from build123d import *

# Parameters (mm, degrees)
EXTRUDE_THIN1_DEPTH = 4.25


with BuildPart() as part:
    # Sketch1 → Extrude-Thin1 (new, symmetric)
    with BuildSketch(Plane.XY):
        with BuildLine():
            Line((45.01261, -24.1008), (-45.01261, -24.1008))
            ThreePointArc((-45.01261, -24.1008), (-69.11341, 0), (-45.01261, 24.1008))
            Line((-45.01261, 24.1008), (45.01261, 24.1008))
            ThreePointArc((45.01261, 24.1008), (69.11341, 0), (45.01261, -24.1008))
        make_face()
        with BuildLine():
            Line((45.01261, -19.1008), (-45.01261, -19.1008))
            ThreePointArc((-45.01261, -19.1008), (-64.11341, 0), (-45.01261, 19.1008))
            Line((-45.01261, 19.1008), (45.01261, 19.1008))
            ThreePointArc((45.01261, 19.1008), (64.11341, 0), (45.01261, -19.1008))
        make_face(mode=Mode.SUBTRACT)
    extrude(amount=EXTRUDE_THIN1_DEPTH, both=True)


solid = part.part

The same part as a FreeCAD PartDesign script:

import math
import FreeCAD as App
import Part
import Sketcher
Q = App.Units.Quantity

doc = App.newDocument("Part")
body = doc.addObject("PartDesign::Body", "Body")

# Sketch on XY plane
sketch1 = doc.addObject("Sketcher::SketchObject", "Sketch")
body.addObject(sketch1)
sketch1.AttachmentSupport = (doc.XY_Plane, [""])
sketch1.MapMode = "FlatFace"
sketch1.addGeometry(Part.LineSegment(App.Vector(-45, -24, 0), App.Vector(45, -24, 0)), False)
sketch1.addGeometry(Part.ArcOfCircle(Part.Circle(App.Vector(45, 0, 0), App.Vector(0, 0, 1), 24), math.radians(-90), math.radians(90)), False)
sketch1.addGeometry(Part.LineSegment(App.Vector(45, 24, 0), App.Vector(-45, 24, 0)), False)
sketch1.addGeometry(Part.ArcOfCircle(Part.Circle(App.Vector(-45, 0, 0), App.Vector(0, 0, 1), 24), math.radians(90), math.radians(270)), False)
sketch1.addGeometry(Part.LineSegment(App.Vector(45, -19, 0), App.Vector(-45, -19, 0)), False)
sketch1.addGeometry(Part.ArcOfCircle(Part.Circle(App.Vector(-45, 0, 0), App.Vector(0, 0, 1), 19), math.radians(90), math.radians(270)), False)
sketch1.addGeometry(Part.LineSegment(App.Vector(-45, 19, 0), App.Vector(45, 19, 0)), False)
sketch1.addGeometry(Part.ArcOfCircle(Part.Circle(App.Vector(45, 0, 0), App.Vector(0, 0, 1), 19), math.radians(-90), math.radians(90)), False)
sketch1.addConstraint(Sketcher.Constraint("Tangent", 0, 2, 1, 1))
sketch1.addConstraint(Sketcher.Constraint("Tangent", 1, 2, 2, 1))
sketch1.addConstraint(Sketcher.Constraint("Tangent", 2, 2, 3, 1))
sketch1.addConstraint(Sketcher.Constraint("Tangent", 3, 2, 0, 1))
sketch1.addConstraint(Sketcher.Constraint("Tangent", 4, 2, 5, 2))
sketch1.addConstraint(Sketcher.Constraint("Tangent", 5, 1, 6, 1))
sketch1.addConstraint(Sketcher.Constraint("Tangent", 6, 2, 7, 2))
sketch1.addConstraint(Sketcher.Constraint("Tangent", 7, 1, 4, 1))
sketch1.addConstraint(Sketcher.Constraint("Horizontal", 0))
sketch1.addConstraint(Sketcher.Constraint("Horizontal", 2))
sketch1.addConstraint(Sketcher.Constraint("Horizontal", 4))
sketch1.addConstraint(Sketcher.Constraint("Horizontal", 6))
sketch1.addConstraint(Sketcher.Constraint("Coincident", 5, 3, 3, 3))
sketch1.addConstraint(Sketcher.Constraint("Symmetric", 1, 3, 3, 3, -1, 1))
sketch1.addConstraint(Sketcher.Constraint("Vertical", 7, 3, 0, 2))
sketch1.addConstraint(Sketcher.Constraint("Radius", 5, Q("0.752 in")))
sketch1.addConstraint(Sketcher.Constraint("Radius", 1, 24.1008))
sketch1.addConstraint(Sketcher.Constraint("DistanceX", 0, 1, 0, 2, Q("3.5443 in")))
pad1 = doc.addObject("PartDesign::Pad", "Pad")
body.addObject(pad1)
pad1.Profile = sketch1
pad1.Length = 8.5
pad1.Midplane = True

doc.recompute()
